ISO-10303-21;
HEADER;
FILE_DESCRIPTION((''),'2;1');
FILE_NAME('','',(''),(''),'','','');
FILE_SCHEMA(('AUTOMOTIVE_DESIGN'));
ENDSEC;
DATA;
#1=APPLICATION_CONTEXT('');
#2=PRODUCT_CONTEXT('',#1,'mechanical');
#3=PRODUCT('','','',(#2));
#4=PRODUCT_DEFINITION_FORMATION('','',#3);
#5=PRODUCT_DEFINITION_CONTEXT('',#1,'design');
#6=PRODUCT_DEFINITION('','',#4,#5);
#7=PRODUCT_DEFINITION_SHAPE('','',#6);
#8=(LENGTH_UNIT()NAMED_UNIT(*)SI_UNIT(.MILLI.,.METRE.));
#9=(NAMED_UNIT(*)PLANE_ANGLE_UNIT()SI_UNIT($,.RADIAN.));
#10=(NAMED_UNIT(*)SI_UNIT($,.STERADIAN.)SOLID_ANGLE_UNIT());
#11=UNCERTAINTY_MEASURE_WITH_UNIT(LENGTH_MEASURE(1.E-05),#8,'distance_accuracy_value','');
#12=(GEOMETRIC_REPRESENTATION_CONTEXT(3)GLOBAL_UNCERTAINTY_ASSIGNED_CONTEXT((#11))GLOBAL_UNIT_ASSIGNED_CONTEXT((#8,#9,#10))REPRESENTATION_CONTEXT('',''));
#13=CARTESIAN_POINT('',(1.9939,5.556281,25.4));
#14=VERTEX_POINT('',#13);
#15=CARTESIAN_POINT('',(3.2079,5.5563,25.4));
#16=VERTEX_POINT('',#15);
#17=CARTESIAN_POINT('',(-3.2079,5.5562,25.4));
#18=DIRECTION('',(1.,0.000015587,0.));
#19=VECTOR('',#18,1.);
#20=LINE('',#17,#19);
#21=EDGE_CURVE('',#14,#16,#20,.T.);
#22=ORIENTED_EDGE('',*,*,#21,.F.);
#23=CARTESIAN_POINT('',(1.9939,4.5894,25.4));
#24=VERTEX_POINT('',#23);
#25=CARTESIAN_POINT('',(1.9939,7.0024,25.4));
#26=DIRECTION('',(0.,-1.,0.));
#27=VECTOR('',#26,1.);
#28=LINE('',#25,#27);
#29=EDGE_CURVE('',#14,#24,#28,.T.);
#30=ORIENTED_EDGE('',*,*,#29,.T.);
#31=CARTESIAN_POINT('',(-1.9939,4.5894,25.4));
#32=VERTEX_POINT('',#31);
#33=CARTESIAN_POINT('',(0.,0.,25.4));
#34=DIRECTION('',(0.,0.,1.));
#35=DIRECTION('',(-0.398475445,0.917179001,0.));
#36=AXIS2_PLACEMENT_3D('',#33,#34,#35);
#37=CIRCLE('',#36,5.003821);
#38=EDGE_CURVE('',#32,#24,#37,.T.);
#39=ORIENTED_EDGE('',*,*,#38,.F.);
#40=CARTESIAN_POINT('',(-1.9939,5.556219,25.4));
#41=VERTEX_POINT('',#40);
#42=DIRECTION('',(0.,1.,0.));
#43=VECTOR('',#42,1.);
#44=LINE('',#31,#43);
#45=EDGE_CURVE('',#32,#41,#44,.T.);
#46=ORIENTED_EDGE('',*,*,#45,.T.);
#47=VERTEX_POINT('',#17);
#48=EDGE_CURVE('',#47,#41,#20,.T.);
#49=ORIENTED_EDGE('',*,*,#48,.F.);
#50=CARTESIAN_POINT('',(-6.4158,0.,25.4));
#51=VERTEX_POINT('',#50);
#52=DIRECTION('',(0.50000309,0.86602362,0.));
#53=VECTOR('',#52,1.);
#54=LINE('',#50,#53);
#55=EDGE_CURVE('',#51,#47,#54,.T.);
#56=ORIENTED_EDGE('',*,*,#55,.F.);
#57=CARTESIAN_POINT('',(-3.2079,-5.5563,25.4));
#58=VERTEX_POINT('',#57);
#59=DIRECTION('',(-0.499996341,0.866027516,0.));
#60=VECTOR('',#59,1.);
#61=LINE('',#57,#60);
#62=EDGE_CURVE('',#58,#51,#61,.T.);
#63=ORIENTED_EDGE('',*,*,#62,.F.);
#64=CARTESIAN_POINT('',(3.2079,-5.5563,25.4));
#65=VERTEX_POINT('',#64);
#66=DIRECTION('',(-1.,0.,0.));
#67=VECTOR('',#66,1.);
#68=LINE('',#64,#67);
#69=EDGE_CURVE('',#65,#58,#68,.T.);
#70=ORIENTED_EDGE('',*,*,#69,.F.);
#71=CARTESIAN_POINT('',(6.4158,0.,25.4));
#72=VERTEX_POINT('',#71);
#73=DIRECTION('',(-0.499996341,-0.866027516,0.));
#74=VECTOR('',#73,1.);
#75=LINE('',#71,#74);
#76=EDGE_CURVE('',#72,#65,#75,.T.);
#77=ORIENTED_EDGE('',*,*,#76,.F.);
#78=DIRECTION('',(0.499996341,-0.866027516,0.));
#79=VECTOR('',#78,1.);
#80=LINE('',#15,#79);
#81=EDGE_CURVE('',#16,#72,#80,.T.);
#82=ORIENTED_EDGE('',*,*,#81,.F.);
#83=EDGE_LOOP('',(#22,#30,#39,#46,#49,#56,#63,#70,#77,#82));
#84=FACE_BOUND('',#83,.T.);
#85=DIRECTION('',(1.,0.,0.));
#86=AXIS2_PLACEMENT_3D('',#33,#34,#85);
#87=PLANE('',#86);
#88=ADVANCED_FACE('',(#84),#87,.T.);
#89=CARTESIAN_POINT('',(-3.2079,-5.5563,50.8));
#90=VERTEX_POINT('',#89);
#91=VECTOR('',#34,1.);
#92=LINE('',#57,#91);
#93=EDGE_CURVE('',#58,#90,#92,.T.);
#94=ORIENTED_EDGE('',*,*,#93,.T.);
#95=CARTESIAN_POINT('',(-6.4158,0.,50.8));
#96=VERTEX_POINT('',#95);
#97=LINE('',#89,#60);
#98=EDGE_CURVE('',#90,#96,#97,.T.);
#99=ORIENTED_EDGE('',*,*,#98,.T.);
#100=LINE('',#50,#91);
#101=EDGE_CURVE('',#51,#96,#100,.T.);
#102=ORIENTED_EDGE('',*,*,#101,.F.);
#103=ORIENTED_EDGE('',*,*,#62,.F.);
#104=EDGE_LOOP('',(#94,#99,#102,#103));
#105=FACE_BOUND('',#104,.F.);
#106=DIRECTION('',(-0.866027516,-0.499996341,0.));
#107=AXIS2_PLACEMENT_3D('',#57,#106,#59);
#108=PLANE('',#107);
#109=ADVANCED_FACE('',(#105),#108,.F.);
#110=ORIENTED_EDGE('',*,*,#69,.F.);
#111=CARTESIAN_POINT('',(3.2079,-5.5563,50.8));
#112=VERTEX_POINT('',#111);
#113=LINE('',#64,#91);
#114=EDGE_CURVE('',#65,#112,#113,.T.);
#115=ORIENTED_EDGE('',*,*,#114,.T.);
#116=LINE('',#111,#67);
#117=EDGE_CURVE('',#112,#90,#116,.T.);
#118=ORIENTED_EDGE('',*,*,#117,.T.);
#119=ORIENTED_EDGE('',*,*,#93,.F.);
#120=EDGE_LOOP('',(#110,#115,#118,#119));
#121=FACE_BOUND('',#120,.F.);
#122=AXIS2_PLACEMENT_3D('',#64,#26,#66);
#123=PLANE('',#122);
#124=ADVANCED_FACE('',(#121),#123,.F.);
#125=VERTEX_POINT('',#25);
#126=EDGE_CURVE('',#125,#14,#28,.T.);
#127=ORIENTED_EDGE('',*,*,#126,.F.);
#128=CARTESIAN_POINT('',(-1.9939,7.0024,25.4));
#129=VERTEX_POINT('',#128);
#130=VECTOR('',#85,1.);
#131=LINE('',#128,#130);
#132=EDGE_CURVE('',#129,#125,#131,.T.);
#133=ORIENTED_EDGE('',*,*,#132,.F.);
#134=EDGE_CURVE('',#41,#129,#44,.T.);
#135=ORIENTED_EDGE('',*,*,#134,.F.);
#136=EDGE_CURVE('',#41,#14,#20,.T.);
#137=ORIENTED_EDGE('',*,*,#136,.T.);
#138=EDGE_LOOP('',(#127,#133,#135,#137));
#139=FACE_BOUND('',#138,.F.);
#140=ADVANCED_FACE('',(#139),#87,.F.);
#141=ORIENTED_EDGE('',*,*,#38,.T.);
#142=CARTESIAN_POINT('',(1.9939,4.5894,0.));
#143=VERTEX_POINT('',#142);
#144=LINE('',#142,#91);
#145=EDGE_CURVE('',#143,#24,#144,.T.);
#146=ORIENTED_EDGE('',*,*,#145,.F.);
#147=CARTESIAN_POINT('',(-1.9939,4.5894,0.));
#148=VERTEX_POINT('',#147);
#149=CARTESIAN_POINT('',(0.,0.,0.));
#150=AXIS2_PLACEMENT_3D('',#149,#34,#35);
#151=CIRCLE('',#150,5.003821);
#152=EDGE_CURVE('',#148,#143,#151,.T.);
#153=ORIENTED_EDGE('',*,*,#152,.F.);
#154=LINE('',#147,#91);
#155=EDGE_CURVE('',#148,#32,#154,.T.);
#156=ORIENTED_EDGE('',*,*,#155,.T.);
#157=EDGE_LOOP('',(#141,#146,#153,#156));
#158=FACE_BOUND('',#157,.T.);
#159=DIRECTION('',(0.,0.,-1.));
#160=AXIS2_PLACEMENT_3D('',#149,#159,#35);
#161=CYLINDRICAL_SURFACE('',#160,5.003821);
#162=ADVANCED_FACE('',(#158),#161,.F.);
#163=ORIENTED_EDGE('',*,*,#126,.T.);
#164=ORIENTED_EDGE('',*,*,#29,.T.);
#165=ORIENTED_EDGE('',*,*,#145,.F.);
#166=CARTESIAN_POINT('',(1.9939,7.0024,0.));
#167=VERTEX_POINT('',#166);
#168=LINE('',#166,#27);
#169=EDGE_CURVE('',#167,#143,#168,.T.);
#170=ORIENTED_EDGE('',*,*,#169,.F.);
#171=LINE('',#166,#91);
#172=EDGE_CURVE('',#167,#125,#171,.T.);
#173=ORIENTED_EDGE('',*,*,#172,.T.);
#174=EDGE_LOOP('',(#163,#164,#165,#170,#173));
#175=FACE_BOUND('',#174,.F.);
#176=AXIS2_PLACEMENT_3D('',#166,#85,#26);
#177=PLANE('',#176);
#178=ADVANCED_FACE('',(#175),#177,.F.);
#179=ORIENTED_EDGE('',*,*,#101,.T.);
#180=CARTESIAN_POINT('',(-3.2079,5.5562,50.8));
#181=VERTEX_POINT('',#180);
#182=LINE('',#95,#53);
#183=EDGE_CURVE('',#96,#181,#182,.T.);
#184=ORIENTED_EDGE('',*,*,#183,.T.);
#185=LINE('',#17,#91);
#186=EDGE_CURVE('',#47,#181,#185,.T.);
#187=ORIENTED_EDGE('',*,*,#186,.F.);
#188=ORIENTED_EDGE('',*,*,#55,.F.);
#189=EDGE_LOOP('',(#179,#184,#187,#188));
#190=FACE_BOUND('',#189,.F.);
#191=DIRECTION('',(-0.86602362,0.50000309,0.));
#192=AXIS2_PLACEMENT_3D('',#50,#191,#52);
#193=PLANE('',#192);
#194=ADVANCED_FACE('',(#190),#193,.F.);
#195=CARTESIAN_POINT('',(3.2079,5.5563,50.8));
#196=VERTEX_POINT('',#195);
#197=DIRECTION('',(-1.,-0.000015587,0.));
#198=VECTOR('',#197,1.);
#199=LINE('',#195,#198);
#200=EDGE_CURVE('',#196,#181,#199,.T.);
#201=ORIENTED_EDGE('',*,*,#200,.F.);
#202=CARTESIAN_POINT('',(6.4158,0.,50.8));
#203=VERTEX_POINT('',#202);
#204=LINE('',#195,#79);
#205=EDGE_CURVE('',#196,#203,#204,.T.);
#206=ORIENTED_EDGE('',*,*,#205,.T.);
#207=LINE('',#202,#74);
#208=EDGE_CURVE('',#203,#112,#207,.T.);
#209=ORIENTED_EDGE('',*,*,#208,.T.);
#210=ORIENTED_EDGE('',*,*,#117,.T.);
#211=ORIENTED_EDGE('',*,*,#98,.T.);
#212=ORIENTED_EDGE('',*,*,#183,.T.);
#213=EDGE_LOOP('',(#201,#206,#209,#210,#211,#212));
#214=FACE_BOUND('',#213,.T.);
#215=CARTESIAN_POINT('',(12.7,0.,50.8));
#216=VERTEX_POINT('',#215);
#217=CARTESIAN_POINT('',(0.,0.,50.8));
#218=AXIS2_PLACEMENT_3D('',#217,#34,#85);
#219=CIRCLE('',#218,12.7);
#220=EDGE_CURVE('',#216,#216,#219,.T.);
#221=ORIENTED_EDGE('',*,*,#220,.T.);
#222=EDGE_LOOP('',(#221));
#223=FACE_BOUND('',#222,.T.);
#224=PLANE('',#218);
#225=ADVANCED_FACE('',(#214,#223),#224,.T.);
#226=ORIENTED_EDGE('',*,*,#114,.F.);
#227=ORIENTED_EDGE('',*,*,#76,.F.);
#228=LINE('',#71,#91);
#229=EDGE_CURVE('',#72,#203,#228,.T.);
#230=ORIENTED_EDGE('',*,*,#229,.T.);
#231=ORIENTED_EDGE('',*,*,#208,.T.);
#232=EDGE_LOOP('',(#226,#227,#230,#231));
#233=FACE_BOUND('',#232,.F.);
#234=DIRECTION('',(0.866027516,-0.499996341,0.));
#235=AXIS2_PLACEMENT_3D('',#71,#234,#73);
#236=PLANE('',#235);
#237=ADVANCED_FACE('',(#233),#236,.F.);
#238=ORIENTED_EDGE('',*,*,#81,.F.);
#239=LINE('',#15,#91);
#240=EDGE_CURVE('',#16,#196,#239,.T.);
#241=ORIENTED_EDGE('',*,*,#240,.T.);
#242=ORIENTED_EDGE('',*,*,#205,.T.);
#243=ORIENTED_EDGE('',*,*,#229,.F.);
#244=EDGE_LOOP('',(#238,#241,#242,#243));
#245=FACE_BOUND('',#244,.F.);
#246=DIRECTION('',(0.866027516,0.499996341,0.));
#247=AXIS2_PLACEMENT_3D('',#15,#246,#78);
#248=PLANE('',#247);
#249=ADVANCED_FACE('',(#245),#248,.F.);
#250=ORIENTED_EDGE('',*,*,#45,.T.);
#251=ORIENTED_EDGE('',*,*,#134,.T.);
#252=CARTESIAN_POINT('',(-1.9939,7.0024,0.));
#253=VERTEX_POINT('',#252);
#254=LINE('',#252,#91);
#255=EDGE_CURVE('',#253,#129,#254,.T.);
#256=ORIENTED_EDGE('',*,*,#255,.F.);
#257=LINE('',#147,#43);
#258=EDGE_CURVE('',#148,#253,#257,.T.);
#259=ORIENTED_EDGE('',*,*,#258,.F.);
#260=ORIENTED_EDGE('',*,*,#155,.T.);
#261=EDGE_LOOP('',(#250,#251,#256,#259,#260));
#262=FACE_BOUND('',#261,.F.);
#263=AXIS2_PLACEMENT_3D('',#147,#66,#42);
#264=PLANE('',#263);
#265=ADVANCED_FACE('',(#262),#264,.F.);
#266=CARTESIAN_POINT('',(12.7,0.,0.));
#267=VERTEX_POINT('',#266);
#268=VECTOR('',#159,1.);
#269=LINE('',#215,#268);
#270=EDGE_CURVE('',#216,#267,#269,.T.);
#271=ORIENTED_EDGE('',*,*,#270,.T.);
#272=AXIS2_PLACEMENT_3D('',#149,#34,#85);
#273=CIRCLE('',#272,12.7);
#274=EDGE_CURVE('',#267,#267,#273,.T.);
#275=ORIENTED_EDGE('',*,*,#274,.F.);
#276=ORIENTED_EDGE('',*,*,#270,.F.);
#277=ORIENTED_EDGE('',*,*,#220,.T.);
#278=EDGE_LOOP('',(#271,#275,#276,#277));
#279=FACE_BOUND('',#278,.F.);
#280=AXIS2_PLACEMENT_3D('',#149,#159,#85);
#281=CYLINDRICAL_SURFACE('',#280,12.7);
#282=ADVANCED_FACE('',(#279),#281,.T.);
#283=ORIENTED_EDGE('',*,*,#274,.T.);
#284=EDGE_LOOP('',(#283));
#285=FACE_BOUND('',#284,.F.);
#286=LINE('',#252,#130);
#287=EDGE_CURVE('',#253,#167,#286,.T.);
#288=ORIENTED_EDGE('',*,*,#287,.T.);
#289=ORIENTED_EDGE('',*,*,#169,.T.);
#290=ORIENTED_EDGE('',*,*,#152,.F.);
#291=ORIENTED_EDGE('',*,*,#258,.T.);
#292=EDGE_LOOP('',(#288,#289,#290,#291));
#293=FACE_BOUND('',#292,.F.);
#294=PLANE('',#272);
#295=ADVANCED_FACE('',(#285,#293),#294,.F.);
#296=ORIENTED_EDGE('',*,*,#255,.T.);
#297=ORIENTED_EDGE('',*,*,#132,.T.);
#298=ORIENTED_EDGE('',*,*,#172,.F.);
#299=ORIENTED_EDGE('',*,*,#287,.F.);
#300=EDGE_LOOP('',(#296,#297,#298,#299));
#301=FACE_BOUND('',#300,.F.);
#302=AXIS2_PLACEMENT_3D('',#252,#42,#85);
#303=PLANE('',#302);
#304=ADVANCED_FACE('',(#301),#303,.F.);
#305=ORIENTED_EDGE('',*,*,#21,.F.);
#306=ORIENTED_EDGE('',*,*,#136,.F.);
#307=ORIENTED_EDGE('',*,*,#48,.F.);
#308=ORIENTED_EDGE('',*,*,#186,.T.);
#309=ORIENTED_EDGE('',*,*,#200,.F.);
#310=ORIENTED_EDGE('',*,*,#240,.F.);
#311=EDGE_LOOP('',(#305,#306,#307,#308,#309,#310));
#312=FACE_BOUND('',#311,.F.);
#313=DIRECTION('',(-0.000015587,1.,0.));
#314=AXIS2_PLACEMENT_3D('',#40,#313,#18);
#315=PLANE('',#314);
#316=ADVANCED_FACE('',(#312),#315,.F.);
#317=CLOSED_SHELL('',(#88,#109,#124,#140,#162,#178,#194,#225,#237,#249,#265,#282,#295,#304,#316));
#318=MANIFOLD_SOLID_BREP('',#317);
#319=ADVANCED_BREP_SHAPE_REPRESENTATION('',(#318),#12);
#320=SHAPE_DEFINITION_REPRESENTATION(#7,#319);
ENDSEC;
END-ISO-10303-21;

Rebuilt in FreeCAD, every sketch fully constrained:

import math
import FreeCAD as App
import Part
import Sketcher
Q = App.Units.Quantity

doc = App.newDocument("Part")
params = doc.addObject("Spreadsheet::Sheet", "Params")
for row, (alias, value) in enumerate([
    ("sketch1_diameter", "1 in"),
    ("sketch1_radius", "0.197 in"),
    ("sketch1_height", "0.095 in"),
    ("sketch1_width", "0.157 in"),
    ("pad1_length", "1 in"),
    ("sketch2_diameter", "1 in"),
    ("pad2_length", "1 in"),
], start=1):
    params.set(f"A{row}", alias)
    params.set(f"B{row}", "=" + value)
    params.setAlias(f"B{row}", alias)

body = doc.addObject("PartDesign::Body", "Body")

sketch1 = doc.addObject("Sketcher::SketchObject", "Sketch")
body.addObject(sketch1)
sketch1.AttachmentSupport = (doc.XY_Plane, [""])
sketch1.MapMode = "FlatFace"
sketch1.addGeometry([
    Part.Circle(App.Vector(0, 0, 0), App.Vector(0, 0, 1), 12.7),
    Part.ArcOfCircle(Part.Circle(App.Vector(0, 0, 0), App.Vector(0, 0, 1), 5), math.radians(113), math.radians(427)),
    Part.LineSegment(App.Vector(-2, 4.6, 0), App.Vector(-2, 7, 0)),
    Part.LineSegment(App.Vector(-2, 7, 0), App.Vector(2, 7, 0)),
    Part.LineSegment(App.Vector(2, 7, 0), App.Vector(2, 4.6, 0)),
], False)
sketch1.addConstraint([
    Sketcher.Constraint("Coincident", 1, 1, 2, 1),
    Sketcher.Constraint("Coincident", 2, 2, 3, 1),
    Sketcher.Constraint("Coincident", 3, 2, 4, 1),
    Sketcher.Constraint("Coincident", 4, 2, 1, 2),
    Sketcher.Constraint("Vertical", 2),
    Sketcher.Constraint("Horizontal", 3),
    Sketcher.Constraint("Vertical", 4),
    Sketcher.Constraint("Coincident", 0, 3, -1, 1),
    Sketcher.Constraint("Coincident", 1, 3, -1, 1),
    Sketcher.Constraint("Horizontal", 1, 1, 4, 2),
    Sketcher.Constraint("Diameter", 0, Q("1 in")),
    Sketcher.Constraint("Radius", 1, Q("0.197 in")),
    Sketcher.Constraint("DistanceY", 2, 1, 2, 2, Q("0.095 in")),
    Sketcher.Constraint("DistanceX", 3, 1, 3, 2, Q("0.157 in")),
])
sketch1.setExpression("Constraints[10]", "Params.sketch1_diameter")
sketch1.setExpression("Constraints[11]", "Params.sketch1_radius")
sketch1.setExpression("Constraints[12]", "Params.sketch1_height")
sketch1.setExpression("Constraints[13]", "Params.sketch1_width")
pad1 = doc.addObject("PartDesign::Pad", "Pad")
body.addObject(pad1)
pad1.Profile = sketch1
pad1.setExpression("Length", "Params.pad1_length")

sketch2 = doc.addObject("Sketcher::SketchObject", "Sketch001")
body.addObject(sketch2)
sketch2.AttachmentSupport = (doc.XY_Plane, [""])
sketch2.MapMode = "FlatFace"
sketch2.AttachmentOffset = App.Placement(App.Vector(0, 0, 1 * 25.4), App.Rotation())
sketch2.addGeometry([
    Part.Circle(App.Vector(0, 0, 0), App.Vector(0, 0, 1), 13),
    Part.LineSegment(App.Vector(3, 6, 0), App.Vector(6, 0, 0)),
    Part.LineSegment(App.Vector(6, 0, 0), App.Vector(3, -6, 0)),
    Part.LineSegment(App.Vector(3, -6, 0), App.Vector(-3, -6, 0)),
    Part.LineSegment(App.Vector(-3, -6, 0), App.Vector(-6, 0, 0)),
    Part.LineSegment(App.Vector(-6, 0, 0), App.Vector(-3, 6, 0)),
    Part.LineSegment(App.Vector(-3, 6, 0), App.Vector(3, 6, 0)),
], False)
sketch2.addConstraint([
    Sketcher.Constraint("Coincident", 1, 2, 2, 1),
    Sketcher.Constraint("Coincident", 2, 2, 3, 1),
    Sketcher.Constraint("Coincident", 3, 2, 4, 1),
    Sketcher.Constraint("Coincident", 4, 2, 5, 1),
    Sketcher.Constraint("Coincident", 5, 2, 6, 1),
    Sketcher.Constraint("Coincident", 6, 2, 1, 1),
    Sketcher.Constraint("Horizontal", 3),
    Sketcher.Constraint("Horizontal", 6),
    Sketcher.Constraint("Coincident", 0, 3, -1, 1),
    Sketcher.Constraint("Symmetric", 1, 2, 4, 2, -1, 1),
    Sketcher.Constraint("Symmetric", 2, 2, 5, 2, -1, 1),
    Sketcher.Constraint("PointOnObject", 1, 2, -1),
    Sketcher.Constraint("Parallel", 1, 4),
    Sketcher.Constraint("Vertical", 3, 2, 5, 2),
    Sketcher.Constraint("Diameter", 0, Q("1 in")),
    Sketcher.Constraint("Angle", 1, Q("-60.0002 deg")),
    Sketcher.Constraint("DistanceY", 3, 2, 5, 2, Q("0.4375 in")),
    Sketcher.Constraint("DistanceX", 3, 2, 3, 1, Q("0.2526 in")),
])
sketch2.setExpression("Constraints[14]", "Params.sketch2_diameter")
pad2 = doc.addObject("PartDesign::Pad", "Pad001")
body.addObject(pad2)
pad2.Profile = sketch2
pad2.setExpression("Length", "Params.pad2_length")

doc.recompute()
